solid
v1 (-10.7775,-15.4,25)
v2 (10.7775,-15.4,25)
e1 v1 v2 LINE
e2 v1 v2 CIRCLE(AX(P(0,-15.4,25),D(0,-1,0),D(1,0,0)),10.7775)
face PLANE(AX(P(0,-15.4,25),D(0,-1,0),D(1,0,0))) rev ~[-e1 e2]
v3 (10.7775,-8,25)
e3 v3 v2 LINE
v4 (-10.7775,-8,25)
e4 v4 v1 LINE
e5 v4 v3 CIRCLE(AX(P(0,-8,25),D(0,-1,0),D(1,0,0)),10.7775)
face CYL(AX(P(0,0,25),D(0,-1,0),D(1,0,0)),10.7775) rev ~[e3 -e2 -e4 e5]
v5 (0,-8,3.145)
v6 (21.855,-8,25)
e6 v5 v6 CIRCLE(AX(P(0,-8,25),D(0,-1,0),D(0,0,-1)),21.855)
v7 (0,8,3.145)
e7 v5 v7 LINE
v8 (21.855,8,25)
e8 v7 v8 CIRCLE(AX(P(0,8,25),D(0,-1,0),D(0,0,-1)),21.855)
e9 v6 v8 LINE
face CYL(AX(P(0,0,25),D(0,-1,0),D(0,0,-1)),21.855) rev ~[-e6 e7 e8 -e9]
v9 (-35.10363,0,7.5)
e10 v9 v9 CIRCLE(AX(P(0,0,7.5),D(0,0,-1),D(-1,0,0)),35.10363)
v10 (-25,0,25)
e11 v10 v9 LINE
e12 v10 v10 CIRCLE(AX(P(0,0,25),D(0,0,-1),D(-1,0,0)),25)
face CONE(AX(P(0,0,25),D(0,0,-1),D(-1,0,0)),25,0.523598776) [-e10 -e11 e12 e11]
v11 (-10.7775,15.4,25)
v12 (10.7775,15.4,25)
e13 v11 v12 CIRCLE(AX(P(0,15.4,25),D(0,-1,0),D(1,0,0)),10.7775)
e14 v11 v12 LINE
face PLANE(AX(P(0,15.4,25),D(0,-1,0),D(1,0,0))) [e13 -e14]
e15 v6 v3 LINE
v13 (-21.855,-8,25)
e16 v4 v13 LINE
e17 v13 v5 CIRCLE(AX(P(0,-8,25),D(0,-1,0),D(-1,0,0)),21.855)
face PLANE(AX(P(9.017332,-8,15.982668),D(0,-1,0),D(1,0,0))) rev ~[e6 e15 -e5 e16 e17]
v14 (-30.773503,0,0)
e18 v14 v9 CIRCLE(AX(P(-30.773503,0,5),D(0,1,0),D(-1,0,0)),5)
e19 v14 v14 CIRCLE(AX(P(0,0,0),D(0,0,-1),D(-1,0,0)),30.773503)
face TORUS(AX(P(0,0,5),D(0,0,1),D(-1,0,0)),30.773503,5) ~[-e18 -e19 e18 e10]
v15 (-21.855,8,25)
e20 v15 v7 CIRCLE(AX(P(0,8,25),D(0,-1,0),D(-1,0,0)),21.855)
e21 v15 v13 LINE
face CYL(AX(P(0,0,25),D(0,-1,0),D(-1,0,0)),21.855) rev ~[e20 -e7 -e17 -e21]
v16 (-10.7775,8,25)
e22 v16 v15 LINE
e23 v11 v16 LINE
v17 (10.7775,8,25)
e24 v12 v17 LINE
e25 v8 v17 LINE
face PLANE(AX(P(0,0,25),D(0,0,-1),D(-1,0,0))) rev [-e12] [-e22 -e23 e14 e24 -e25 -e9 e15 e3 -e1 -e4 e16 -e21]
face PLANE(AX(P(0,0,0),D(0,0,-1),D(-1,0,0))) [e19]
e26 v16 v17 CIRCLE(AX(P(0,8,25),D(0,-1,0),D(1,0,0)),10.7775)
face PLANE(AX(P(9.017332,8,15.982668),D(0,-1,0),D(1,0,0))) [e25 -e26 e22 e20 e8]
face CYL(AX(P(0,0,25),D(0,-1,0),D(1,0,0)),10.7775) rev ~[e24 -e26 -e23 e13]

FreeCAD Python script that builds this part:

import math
import FreeCAD as App
import Part
import Sketcher
Q = App.Units.Quantity


def edges_at(feature, points):
    """Names of the edges that pass closest to the given points."""
    edges = feature.Shape.Edges
    near = lambda p: min(range(len(edges)), key=lambda i: edges[i].distToShape(Part.Vertex(*p))[0])
    return sorted({f"Edge{near(p) + 1}" for p in points})


def add_polygon(sketch, points):
    """Adds a closed chain of lines whose ends are joined by coincident constraints."""
    first, n = sketch.GeometryCount, len(points)
    for a, b in zip(points, points[1:] + points[:1]):
        sketch.addGeometry(Part.LineSegment(App.Vector(*a, 0), App.Vector(*b, 0)), False)
    for i in range(n):
        sketch.addConstraint(Sketcher.Constraint("Coincident", first + i, 2, first + (i + 1) % n, 1))

doc = App.newDocument("Part")
body = doc.addObject("PartDesign::Body", "Body")

# Sketch on XZ plane
sketch1 = body.newObject("Sketcher::SketchObject", "Sketch")
sketch1.AttachmentSupport = (doc.getObject("XZ_Plane"), [""])
sketch1.MapMode = "FlatFace"
add_polygon(sketch1, [(-39, 0), (0, 0), (0, 25), (-25, 25)])  # lines 0-3
sketch1.addConstraint([
    Sketcher.Constraint("Horizontal", 0),
    Sketcher.Constraint("Vertical", 1),
    Sketcher.Constraint("Horizontal", 2),
    Sketcher.Constraint("Coincident", 0, 2, -1, 1),
    Sketcher.Constraint("Equal", 2, 1),
    Sketcher.Constraint("DistanceX", 2, 2, 2, 1, Q("25 mm")),
    Sketcher.Constraint("Angle", 3, Q("-120 deg")),
])
revolution = body.newObject("PartDesign::Revolution", "Revolution")
revolution.Profile = sketch1
revolution.ReferenceAxis = (sketch1, ["V_Axis"])
revolution.Angle = 360

# Sketch on XZ plane
sketch2 = body.newObject("Sketcher::SketchObject", "Sketch001")
sketch2.AttachmentSupport = (doc.getObject("XZ_Plane"), [""])
sketch2.MapMode = "FlatFace"
sketch2.addGeometry([
    Part.LineSegment(App.Vector(22, 25, 0), App.Vector(-22, 25, 0)),
    Part.ArcOfCircle(Part.Circle(App.Vector(0, 25, 0), App.Vector(0, 0, 1), 22), math.radians(180), math.radians(270)),
    Part.ArcOfCircle(Part.Circle(App.Vector(0, 25, 0), App.Vector(0, 0, 1), 22), math.radians(-90), math.radians(0)),
], False)
sketch2.addConstraint([
    Sketcher.Constraint("Coincident", 0, 2, 1, 1),
    Sketcher.Constraint("Tangent", 1, 2, 2, 1),
    Sketcher.Constraint("Coincident", 2, 2, 0, 1),
    Sketcher.Constraint("Horizontal", 0),
    Sketcher.Constraint("Equal", 1, 2),
    Sketcher.Constraint("PointOnObject", 1, 3, -2),
    Sketcher.Constraint("PointOnObject", 1, 2, -2),
    Sketcher.Constraint("Horizontal", 2, 3, 0, 2),
    Sketcher.Constraint("DistanceY", -1, 1, 1, 3, Q("25 mm")),
    Sketcher.Constraint("Radius", 1, Q("21.855 mm")),
])
pocket1 = body.newObject("PartDesign::Pocket", "Pocket")
pocket1.Profile = sketch2
pocket1.Length = 16
pocket1.Midplane = True
doc.recompute()

fillet = body.newObject("PartDesign::Fillet", "Fillet")
fillet.Base = (pocket1, edges_at(pocket1, [(39.434, 0, 0)]))
fillet.Radius = 5

# Sketch on XZ plane
sketch3 = body.newObject("Sketcher::SketchObject", "Sketch002")
sketch3.AttachmentSupport = (doc.getObject("XZ_Plane"), [""])
sketch3.MapMode = "FlatFace"
sketch3.addGeometry(Part.Circle(App.Vector(0, 25, 0), App.Vector(0, 0, 1), 11), False)
sketch3.addConstraint([
    Sketcher.Constraint("PointOnObject", 0, 3, -2),
    Sketcher.Constraint("Diameter", 0, Q("21.555 mm")),
    Sketcher.Constraint("DistanceY", -1, 1, 0, 3, Q("25 mm")),
])
pocket2 = body.newObject("PartDesign::Pocket", "Pocket001")
pocket2.Profile = sketch3
pocket2.Length = 30.8
pocket2.Midplane = True

doc.recompute()
